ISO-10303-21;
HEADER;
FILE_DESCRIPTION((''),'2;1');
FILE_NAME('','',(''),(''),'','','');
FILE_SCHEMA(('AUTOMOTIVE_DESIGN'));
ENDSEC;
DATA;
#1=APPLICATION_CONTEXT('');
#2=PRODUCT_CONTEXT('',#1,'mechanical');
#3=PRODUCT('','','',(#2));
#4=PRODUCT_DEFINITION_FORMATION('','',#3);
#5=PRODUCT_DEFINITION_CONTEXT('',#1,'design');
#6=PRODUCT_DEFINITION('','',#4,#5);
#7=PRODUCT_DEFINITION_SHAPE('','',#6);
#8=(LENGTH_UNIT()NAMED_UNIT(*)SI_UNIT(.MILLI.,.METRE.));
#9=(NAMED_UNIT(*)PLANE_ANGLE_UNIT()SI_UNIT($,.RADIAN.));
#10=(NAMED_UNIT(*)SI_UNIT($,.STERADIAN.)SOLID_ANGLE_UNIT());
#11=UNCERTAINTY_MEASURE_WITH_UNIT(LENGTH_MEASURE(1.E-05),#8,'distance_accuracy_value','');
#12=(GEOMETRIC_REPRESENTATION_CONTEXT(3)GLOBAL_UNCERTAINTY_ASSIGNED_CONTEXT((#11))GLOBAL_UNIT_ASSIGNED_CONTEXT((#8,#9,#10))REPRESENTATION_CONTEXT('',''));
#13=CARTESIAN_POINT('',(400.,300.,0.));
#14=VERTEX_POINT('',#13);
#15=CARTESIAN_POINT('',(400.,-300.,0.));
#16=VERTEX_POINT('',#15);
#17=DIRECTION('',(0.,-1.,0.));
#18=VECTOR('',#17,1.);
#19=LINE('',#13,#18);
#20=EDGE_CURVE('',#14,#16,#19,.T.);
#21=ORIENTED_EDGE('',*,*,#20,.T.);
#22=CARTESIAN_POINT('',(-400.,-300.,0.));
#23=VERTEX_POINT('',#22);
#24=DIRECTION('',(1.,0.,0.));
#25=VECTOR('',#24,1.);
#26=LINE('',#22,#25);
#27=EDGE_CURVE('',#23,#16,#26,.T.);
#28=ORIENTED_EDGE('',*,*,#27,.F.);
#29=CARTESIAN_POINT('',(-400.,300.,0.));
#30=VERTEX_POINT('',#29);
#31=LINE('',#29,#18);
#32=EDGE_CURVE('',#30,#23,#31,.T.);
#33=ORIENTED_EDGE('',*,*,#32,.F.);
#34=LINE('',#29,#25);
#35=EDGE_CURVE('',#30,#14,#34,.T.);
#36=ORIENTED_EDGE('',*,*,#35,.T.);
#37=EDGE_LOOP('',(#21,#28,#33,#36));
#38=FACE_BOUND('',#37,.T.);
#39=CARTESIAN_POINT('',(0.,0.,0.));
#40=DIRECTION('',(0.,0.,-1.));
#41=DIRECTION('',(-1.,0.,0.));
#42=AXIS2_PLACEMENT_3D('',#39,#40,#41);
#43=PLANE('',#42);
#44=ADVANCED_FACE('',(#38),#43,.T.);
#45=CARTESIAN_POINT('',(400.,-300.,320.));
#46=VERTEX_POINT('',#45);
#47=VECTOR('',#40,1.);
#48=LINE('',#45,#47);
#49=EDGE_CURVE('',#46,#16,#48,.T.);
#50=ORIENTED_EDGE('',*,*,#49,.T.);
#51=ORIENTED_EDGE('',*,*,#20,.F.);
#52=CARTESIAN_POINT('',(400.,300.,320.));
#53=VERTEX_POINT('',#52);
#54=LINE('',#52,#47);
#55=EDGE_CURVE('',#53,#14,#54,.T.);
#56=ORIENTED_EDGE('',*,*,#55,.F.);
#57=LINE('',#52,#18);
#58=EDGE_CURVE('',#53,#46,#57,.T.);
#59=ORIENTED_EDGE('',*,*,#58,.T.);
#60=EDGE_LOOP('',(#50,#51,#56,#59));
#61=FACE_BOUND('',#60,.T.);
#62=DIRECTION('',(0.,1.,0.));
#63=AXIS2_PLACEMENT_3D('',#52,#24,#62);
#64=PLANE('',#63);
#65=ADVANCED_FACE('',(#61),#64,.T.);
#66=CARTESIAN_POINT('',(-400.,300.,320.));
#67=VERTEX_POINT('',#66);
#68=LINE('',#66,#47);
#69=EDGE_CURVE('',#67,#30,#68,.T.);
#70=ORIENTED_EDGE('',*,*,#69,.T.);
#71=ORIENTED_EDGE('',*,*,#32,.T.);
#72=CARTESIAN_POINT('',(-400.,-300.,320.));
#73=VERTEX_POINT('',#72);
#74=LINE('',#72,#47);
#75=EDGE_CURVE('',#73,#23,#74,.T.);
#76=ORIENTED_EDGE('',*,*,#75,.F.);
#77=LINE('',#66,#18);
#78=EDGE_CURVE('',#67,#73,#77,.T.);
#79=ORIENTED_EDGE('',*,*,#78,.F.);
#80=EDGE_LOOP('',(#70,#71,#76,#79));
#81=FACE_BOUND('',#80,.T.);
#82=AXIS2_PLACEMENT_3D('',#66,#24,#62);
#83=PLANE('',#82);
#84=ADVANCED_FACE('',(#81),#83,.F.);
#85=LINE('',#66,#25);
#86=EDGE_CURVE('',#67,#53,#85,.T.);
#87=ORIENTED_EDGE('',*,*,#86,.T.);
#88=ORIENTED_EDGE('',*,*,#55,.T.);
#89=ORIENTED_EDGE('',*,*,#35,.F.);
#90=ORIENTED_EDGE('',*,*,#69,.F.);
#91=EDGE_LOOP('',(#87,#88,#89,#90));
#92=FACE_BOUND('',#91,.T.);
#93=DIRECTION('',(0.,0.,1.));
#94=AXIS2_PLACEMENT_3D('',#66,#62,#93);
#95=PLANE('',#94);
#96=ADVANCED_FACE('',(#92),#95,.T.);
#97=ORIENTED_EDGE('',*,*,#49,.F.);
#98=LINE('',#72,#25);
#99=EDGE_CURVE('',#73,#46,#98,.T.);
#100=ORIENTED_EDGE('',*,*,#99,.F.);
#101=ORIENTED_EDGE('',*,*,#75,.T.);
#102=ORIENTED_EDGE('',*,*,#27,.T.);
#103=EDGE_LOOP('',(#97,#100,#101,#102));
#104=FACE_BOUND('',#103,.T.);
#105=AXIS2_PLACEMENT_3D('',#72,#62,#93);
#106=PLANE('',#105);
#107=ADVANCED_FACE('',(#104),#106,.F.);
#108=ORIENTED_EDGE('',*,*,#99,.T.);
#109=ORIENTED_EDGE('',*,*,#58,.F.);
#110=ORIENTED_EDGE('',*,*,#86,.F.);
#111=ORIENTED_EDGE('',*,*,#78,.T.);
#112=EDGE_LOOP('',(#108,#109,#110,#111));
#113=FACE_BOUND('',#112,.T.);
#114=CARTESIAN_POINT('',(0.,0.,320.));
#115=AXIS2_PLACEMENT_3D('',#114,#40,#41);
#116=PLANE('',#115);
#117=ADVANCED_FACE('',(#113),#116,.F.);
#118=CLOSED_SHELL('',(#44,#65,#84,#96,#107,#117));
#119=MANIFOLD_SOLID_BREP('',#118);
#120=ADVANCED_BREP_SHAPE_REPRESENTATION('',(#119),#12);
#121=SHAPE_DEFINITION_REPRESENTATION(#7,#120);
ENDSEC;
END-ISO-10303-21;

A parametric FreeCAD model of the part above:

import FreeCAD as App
import Part
import Sketcher
Q = App.Units.Quantity

doc = App.newDocument("Part")
params = doc.addObject("Spreadsheet::Sheet", "Params")
for row, (alias, value) in enumerate([
    ("sketch1_width", "800 mm"),
    ("sketch1_height", "600 mm"),
    ("pad1_length", "320 mm"),
], start=1):
    params.set(f"A{row}", alias)
    params.set(f"B{row}", "=" + value)
    params.setAlias(f"B{row}", alias)

body = doc.addObject("PartDesign::Body", "Body")

# Sketch on XY plane
sketch1 = doc.addObject("Sketcher::SketchObject", "Sketch")
body.addObject(sketch1)
sketch1.AttachmentSupport = (doc.XY_Plane, [""])
sketch1.MapMode = "FlatFace"
sketch1.addGeometry(Part.LineSegment(App.Vector(-400, 300, 0), App.Vector(-400, -300, 0)), False)
sketch1.addGeometry(Part.LineSegment(App.Vector(-400, -300, 0), App.Vector(400, -300, 0)), False)
sketch1.addGeometry(Part.LineSegment(App.Vector(400, -300, 0), App.Vector(400, 300, 0)), False)
sketch1.addGeometry(Part.LineSegment(App.Vector(400, 300, 0), App.Vector(-400, 300, 0)), False)
sketch1.addConstraint(Sketcher.Constraint("Coincident", 0, 2, 1, 1))
sketch1.addConstraint(Sketcher.Constraint("Coincident", 1, 2, 2, 1))
sketch1.addConstraint(Sketcher.Constraint("Coincident", 2, 2, 3, 1))
sketch1.addConstraint(Sketcher.Constraint("Coincident", 3, 2, 0, 1))
sketch1.addConstraint(Sketcher.Constraint("Vertical", 0))
sketch1.addConstraint(Sketcher.Constraint("Horizontal", 1))
sketch1.addConstraint(Sketcher.Constraint("Vertical", 2))
sketch1.addConstraint(Sketcher.Constraint("Horizontal", 3))
sketch1.addConstraint(Sketcher.Constraint("Symmetric", 0, 2, 2, 2, -1, 1))
sketch1.addConstraint(Sketcher.Constraint("DistanceX", 1, 1, 1, 2, Q("800 mm")))
sketch1.addConstraint(Sketcher.Constraint("DistanceY", 0, 2, 0, 1, Q("600 mm")))
sketch1.setExpression("Constraints[9]", "Params.sketch1_width")
sketch1.setExpression("Constraints[10]", "Params.sketch1_height")
pad1 = doc.addObject("PartDesign::Pad", "Pad")
body.addObject(pad1)
pad1.Profile = sketch1
pad1.setExpression("Length", "Params.pad1_length")

doc.recompute()
